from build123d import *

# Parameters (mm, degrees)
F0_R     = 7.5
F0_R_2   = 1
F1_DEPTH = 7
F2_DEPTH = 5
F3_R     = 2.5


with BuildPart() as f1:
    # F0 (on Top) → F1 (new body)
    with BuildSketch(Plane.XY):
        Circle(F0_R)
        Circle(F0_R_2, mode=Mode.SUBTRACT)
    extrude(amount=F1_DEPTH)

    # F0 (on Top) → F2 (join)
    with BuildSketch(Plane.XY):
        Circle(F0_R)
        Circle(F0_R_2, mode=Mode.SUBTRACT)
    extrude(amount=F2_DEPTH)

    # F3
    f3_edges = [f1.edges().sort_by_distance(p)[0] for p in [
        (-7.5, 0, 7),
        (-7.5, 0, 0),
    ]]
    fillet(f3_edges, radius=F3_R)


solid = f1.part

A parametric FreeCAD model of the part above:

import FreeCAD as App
import Part
import Sketcher

V = App.Vector
Q = App.Units.Quantity


def edges_at(feature, points):
    """Names of the edges that pass closest to the given points."""
    edges = feature.Shape.Edges
    near = lambda p: min(range(len(edges)), key=lambda i: edges[i].distToShape(Part.Vertex(*p))[0])
    return sorted({f"Edge{near(p) + 1}" for p in points})

doc = App.newDocument("Part")
params = doc.addObject("Spreadsheet::Sheet", "Params")
for row, (alias, value) in enumerate([
    ("sketch1_diameter", "15 mm"),
    ("sketch1_diameter2", "2 mm"),
    ("pad1_length", "7 mm"),
    ("sketch2_diameter", "15 mm"),
    ("sketch2_diameter2", "2 mm"),
    ("pad2_length", "5 mm"),
    ("fillet_radius", "2.5 mm"),
], start=1):
    params.set(f"A{row}", alias)
    params.set(f"B{row}", "=" + value)
    params.setAlias(f"B{row}", alias)

body = doc.addObject("PartDesign::Body", "Body")

sketch1 = body.newObject("Sketcher::SketchObject", "Sketch")
sketch1.AttachmentSupport = (doc.getObject("XY_Plane"), [""])
sketch1.MapMode = "FlatFace"
sketch1.addGeometry(Part.Circle(V(0, 0, 0), V(0, 0, 1), 7.5), False)
sketch1.addGeometry(Part.Circle(V(0, 0, 0), V(0, 0, 1), 1), False)
sketch1.addConstraint(Sketcher.Constraint("Coincident", 0, 3, -1, 1))
sketch1.addConstraint(Sketcher.Constraint("Coincident", 1, 3, -1, 1))
sketch1.addConstraint(Sketcher.Constraint("Diameter", 0, Q("15 mm")))
sketch1.addConstraint(Sketcher.Constraint("Diameter", 1, Q("2 mm")))
sketch1.setExpression("Constraints[2]", "Params.sketch1_diameter")
sketch1.setExpression("Constraints[3]", "Params.sketch1_diameter2")
pad1 = body.newObject("PartDesign::Pad", "Pad")
pad1.Profile = sketch1
pad1.setExpression("Length", "Params.pad1_length")

sketch2 = body.newObject("Sketcher::SketchObject", "Sketch001")
sketch2.AttachmentSupport = (doc.getObject("XY_Plane"), [""])
sketch2.MapMode = "FlatFace"
sketch2.addGeometry(Part.Circle(V(0, 0, 0), V(0, 0, 1), 7.5), False)
sketch2.addGeometry(Part.Circle(V(0, 0, 0), V(0, 0, 1), 1), False)
sketch2.addConstraint(Sketcher.Constraint("Coincident", 0, 3, -1, 1))
sketch2.addConstraint(Sketcher.Constraint("Coincident", 1, 3, -1, 1))
sketch2.addConstraint(Sketcher.Constraint("Diameter", 0, Q("15 mm")))
sketch2.addConstraint(Sketcher.Constraint("Diameter", 1, Q("2 mm")))
sketch2.setExpression("Constraints[2]", "Params.sketch2_diameter")
sketch2.setExpression("Constraints[3]", "Params.sketch2_diameter2")
pad2 = body.newObject("PartDesign::Pad", "Pad001")
pad2.Profile = sketch2
pad2.setExpression("Length", "Params.pad2_length")
doc.recompute()

fillet = body.newObject("PartDesign::Fillet", "Fillet")
fillet.Base = (pad2, edges_at(pad2, [(-7.5, 0, 7), (-7.5, 0, 0)]))
fillet.setExpression("Radius", "Params.fillet_radius")

doc.recompute()
